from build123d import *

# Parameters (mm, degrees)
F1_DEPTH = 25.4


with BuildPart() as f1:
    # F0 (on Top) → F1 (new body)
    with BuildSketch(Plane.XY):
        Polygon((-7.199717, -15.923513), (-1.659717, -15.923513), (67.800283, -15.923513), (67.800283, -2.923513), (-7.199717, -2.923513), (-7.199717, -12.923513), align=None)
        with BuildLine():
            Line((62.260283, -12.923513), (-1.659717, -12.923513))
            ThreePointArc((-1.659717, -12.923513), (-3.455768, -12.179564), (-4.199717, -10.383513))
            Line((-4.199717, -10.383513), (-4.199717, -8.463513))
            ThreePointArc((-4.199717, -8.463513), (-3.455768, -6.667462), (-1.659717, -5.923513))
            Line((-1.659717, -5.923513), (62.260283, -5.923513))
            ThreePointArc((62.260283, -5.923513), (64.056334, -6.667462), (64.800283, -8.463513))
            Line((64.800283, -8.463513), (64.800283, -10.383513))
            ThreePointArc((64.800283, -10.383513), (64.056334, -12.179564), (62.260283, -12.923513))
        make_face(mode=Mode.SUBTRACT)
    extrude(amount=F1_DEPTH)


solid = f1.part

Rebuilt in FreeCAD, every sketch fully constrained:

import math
import FreeCAD as App
import Part
import Sketcher

V = App.Vector


def add_polygon(sketch, points):
    """Adds a closed chain of lines whose ends are joined by coincident constraints."""
    first, n = sketch.GeometryCount, len(points)
    for a, b in zip(points, points[1:] + points[:1]):
        sketch.addGeometry(Part.LineSegment(App.Vector(*a, 0), App.Vector(*b, 0)), False)
    for i in range(n):
        sketch.addConstraint(Sketcher.Constraint("Coincident", first + i, 2, first + (i + 1) % n, 1))

doc = App.newDocument("Part")
body = doc.addObject("PartDesign::Body", "Body")

sketch1 = body.newObject("Sketcher::SketchObject", "Sketch")
sketch1.AttachmentSupport = (doc.getObject("XY_Plane"), [""])
sketch1.MapMode = "FlatFace"
add_polygon(sketch1, [(-7.2, -15.9), (67.8, -15.9), (67.8, -2.9), (-7.2, -2.9)])
sketch1.addGeometry(Part.ArcOfCircle(Part.Circle(V(62.3, -10.4, 0), V(0, 0, 1), 2.5), math.radians(-90), math.radians(0)), False)
sketch1.addGeometry(Part.LineSegment(V(62.3, -12.9, 0), V(-1.7, -12.9, 0)), False)
sketch1.addGeometry(Part.ArcOfCircle(Part.Circle(V(-1.7, -10.4, 0), V(0, 0, 1), 2.5), math.radians(-180), math.radians(-90)), False)
sketch1.addGeometry(Part.LineSegment(V(-4.2, -10.4, 0), V(-4.2, -8.5, 0)), False)
sketch1.addGeometry(Part.ArcOfCircle(Part.Circle(V(-1.7, -8.5, 0), V(0, 0, 1), 2.5), math.radians(90), math.radians(180)), False)
sketch1.addGeometry(Part.LineSegment(V(-1.7, -5.9, 0), V(62.3, -5.9, 0)), False)
sketch1.addGeometry(Part.ArcOfCircle(Part.Circle(V(62.3, -8.5, 0), V(0, 0, 1), 2.5), math.radians(0), math.radians(90)), False)
sketch1.addGeometry(Part.LineSegment(V(64.8, -8.5, 0), V(64.8, -10.4, 0)), False)
sketch1.addConstraint([
    Sketcher.Constraint("Tangent", 4, 1, 5, 1),
    Sketcher.Constraint("Tangent", 5, 2, 6, 2),
    Sketcher.Constraint("Tangent", 6, 1, 7, 1),
    Sketcher.Constraint("Tangent", 7, 2, 8, 2),
    Sketcher.Constraint("Tangent", 8, 1, 9, 1),
    Sketcher.Constraint("Tangent", 9, 2, 10, 2),
    Sketcher.Constraint("Tangent", 10, 1, 11, 1),
    Sketcher.Constraint("Tangent", 11, 2, 4, 2),
    Sketcher.Constraint("Horizontal", 0),
    Sketcher.Constraint("Vertical", 1),
    Sketcher.Constraint("Horizontal", 2),
    Sketcher.Constraint("Vertical", 3),
    Sketcher.Constraint("Horizontal", 5),
    Sketcher.Constraint("Vertical", 7),
    Sketcher.Constraint("Horizontal", 9),
    Sketcher.Constraint("Vertical", 11),
    Sketcher.Constraint("Equal", 4, 6),
    Sketcher.Constraint("Equal", 6, 8),
    Sketcher.Constraint("Equal", 8, 10),
    Sketcher.Constraint("DistanceX", 0, 1, 0, 2, 75.0),
    Sketcher.Constraint("DistanceY", 1, 1, 1, 2, 13.0),
    Sketcher.Constraint("Radius", 4, 2.540001),
    Sketcher.Constraint("DistanceY", 0, 2, 4, 1, 3.0),
    Sketcher.Constraint("DistanceX", 3, 2, 6, 1, 3.0),
    Sketcher.Constraint("DistanceY", 8, 1, 2, 2, 3.0),
    Sketcher.Constraint("DistanceX", 10, 1, 1, 2, 3.0),
    Sketcher.Constraint("DistanceX", -1, 1, 4, 3, 62.260282),
    Sketcher.Constraint("DistanceY", 4, 3, -1, 1, 10.383512),
])
pad1 = body.newObject("PartDesign::Pad", "Pad")
pad1.Profile = sketch1
pad1.Length = 25.4

doc.recompute()
